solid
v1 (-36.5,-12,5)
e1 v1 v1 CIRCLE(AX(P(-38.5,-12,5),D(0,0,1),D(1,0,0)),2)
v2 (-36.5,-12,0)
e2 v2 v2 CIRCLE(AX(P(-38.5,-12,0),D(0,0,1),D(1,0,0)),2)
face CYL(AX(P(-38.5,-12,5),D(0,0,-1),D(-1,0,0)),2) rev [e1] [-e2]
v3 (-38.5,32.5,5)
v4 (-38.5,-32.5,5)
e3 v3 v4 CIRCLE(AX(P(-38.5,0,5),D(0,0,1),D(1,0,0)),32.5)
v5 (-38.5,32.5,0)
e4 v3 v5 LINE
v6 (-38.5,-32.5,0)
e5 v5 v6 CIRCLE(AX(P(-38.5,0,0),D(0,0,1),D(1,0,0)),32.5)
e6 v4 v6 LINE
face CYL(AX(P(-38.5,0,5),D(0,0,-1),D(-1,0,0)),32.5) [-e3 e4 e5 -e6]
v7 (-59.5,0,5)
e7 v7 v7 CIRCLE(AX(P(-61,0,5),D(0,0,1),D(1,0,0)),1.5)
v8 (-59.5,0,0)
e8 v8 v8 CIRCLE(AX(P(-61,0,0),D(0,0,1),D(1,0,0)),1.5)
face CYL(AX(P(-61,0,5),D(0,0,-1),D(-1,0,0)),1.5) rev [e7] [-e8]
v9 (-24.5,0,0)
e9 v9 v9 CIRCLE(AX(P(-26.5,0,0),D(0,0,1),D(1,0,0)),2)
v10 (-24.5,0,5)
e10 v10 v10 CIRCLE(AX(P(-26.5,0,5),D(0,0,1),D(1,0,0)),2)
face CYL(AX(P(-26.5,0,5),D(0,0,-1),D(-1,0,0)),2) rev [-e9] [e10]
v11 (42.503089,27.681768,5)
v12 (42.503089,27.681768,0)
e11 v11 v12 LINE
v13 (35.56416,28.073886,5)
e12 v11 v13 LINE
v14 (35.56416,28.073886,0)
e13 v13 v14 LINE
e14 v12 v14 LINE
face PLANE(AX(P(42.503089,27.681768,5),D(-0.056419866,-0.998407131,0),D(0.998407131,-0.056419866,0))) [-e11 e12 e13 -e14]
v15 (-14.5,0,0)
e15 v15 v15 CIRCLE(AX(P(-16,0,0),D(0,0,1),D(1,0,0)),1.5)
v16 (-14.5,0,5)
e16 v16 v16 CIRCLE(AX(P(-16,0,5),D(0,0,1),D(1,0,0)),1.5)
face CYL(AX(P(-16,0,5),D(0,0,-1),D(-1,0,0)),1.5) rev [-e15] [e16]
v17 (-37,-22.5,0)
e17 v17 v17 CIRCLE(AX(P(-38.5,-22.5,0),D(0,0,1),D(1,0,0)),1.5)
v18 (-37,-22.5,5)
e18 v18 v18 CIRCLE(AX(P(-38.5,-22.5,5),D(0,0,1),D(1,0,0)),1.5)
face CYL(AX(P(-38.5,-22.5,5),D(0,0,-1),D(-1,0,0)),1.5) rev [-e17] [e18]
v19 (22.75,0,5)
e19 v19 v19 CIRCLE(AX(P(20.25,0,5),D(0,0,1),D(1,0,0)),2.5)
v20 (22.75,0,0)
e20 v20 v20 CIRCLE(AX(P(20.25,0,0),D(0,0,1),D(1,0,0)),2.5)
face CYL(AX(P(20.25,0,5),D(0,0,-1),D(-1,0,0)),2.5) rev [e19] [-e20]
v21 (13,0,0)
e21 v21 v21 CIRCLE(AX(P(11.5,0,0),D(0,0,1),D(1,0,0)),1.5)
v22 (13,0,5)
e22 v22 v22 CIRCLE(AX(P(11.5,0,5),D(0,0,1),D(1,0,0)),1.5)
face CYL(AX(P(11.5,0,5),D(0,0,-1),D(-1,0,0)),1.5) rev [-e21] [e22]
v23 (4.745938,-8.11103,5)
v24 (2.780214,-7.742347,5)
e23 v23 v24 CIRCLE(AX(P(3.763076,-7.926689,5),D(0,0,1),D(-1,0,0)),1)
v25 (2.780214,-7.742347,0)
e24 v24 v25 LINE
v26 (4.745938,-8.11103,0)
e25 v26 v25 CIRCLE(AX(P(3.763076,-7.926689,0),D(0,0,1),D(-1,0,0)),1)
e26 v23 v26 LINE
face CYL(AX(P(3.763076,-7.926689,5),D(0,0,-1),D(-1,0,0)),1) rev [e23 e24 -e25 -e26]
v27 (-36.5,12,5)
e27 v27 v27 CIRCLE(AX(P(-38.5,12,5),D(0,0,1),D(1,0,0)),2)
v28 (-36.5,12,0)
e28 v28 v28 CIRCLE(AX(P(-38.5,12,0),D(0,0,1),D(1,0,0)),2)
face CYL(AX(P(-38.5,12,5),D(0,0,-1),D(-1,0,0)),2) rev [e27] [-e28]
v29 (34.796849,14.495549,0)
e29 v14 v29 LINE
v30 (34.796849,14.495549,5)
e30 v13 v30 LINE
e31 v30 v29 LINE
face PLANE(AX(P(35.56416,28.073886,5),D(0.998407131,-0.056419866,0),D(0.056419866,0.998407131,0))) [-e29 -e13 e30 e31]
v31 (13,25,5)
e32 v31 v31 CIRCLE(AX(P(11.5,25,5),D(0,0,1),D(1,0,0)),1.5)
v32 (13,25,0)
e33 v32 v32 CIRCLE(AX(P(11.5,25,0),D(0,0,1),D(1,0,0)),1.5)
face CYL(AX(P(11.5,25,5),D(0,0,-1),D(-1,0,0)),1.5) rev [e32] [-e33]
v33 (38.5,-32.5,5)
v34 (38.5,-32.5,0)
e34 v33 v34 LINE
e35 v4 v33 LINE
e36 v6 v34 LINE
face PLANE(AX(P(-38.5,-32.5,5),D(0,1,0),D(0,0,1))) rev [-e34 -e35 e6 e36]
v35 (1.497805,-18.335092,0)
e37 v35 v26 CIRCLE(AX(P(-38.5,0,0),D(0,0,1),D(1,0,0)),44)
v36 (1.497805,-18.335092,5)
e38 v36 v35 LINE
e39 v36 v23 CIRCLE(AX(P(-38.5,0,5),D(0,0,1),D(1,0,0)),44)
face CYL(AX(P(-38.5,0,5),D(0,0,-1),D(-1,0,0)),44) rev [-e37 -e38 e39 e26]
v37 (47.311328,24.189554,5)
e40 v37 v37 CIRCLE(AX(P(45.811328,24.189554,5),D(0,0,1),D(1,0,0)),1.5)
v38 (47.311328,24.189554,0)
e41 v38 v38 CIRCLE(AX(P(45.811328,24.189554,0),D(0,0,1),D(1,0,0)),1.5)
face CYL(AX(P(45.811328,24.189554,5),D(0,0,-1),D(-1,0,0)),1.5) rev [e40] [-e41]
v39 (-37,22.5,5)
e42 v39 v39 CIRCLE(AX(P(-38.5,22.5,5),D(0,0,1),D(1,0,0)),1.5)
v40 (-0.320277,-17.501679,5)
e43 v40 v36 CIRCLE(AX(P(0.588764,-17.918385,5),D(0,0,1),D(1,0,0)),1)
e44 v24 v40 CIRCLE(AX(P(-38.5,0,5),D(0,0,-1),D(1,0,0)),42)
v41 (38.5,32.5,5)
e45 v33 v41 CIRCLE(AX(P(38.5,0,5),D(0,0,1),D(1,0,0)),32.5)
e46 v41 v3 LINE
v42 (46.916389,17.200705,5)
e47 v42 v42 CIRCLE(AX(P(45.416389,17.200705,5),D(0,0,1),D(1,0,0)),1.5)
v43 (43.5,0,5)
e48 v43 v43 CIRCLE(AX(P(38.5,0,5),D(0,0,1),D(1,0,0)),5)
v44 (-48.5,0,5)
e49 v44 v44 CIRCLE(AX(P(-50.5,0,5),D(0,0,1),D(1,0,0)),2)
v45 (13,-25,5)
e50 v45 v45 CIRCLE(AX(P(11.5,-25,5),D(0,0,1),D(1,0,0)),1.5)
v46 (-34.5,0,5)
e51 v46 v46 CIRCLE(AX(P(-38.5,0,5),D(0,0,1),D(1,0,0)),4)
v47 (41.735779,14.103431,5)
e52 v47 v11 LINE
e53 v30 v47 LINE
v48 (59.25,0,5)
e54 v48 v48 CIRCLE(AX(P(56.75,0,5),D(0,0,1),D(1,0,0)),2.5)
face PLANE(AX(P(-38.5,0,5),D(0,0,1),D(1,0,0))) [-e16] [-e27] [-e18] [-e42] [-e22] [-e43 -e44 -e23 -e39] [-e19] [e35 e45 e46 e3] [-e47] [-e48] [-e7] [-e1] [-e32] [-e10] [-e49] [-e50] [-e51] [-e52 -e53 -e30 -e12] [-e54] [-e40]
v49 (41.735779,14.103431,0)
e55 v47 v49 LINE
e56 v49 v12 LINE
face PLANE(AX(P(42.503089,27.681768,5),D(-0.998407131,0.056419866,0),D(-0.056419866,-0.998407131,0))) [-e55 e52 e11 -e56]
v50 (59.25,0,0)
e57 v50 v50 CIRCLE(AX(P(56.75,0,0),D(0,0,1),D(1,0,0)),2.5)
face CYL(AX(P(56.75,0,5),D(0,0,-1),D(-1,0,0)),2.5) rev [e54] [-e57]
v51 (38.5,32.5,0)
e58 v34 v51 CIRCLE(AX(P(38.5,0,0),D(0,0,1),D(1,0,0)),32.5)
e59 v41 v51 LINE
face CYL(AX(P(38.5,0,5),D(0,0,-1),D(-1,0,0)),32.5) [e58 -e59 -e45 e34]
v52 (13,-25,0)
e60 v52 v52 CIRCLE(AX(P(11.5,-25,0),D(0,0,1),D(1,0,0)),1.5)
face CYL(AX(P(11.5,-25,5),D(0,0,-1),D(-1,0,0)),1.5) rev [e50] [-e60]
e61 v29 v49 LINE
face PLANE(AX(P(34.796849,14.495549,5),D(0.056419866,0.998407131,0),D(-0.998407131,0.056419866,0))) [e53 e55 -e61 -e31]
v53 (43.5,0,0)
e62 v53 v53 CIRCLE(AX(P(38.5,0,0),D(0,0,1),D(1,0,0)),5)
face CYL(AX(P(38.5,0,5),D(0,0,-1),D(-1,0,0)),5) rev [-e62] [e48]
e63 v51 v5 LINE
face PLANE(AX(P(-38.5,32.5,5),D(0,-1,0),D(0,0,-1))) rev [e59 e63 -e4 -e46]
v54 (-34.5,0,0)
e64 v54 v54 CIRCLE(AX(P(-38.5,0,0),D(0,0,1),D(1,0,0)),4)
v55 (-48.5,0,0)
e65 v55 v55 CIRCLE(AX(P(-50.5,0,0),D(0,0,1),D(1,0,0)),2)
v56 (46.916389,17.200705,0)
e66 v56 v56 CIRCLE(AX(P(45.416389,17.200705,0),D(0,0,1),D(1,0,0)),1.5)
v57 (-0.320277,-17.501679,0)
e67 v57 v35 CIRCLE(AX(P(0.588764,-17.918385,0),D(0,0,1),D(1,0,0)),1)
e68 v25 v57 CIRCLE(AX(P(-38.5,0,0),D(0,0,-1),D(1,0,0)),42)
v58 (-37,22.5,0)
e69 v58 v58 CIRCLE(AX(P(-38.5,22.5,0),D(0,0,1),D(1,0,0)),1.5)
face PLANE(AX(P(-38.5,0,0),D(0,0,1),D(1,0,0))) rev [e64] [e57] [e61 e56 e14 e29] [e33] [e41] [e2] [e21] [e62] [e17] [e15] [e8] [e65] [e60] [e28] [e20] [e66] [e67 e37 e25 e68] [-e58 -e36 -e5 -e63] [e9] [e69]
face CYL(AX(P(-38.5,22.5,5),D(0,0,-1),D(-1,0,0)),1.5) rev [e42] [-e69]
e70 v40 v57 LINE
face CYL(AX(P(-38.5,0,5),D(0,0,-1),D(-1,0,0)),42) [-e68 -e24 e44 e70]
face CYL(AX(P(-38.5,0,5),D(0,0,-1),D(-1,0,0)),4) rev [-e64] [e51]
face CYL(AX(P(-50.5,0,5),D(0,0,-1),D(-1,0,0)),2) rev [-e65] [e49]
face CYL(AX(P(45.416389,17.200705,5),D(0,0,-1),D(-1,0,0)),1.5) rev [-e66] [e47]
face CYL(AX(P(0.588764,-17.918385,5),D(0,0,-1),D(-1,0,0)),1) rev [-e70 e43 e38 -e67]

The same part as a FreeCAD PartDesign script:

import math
import FreeCAD as App
import Part
import Sketcher
from FreeCAD import Vector

doc = App.newDocument("Part")
body = doc.addObject("PartDesign::Body", "Body")

# Sketch on XY plane
sketch1 = body.newObject("Sketcher::SketchObject", "Sketch")
sketch1.AttachmentSupport = (doc.getObject("XY_Plane"), [""])
sketch1.MapMode = "FlatFace"
sketch1.addGeometry(Part.LineSegment(Vector(38.5, 32.5, 0), Vector(-38.5, 32.5, 0)), False)
sketch1.addGeometry(Part.ArcOfCircle(Part.Circle(Vector(-38.5, 0, 0), Vector(0, 0, 1), 32.5), math.radians(90), math.radians(270)), False)
sketch1.addGeometry(Part.LineSegment(Vector(-38.5, -32.5, 0), Vector(38.5, -32.5, 0)), False)
sketch1.addGeometry(Part.ArcOfCircle(Part.Circle(Vector(38.5, 0, 0), Vector(0, 0, 1), 32.5), math.radians(-90), math.radians(90)), False)
sketch1.addGeometry(Part.Circle(Vector(11.5, -25, 0), Vector(0, 0, 1), 1.5), False)
sketch1.addGeometry(Part.ArcOfCircle(Part.Circle(Vector(-38.5, 0, 0), Vector(0, 0, 1), 42), math.radians(-24.626838), math.radians(-10.622748)), False)
sketch1.addGeometry(Part.ArcOfCircle(Part.Circle(Vector(3.763076, -7.926689, 0), Vector(0, 0, 1), 1), math.radians(-10.622748), math.radians(169.377251)), False)
sketch1.addGeometry(Part.ArcOfCircle(Part.Circle(Vector(-38.5, 0, 0), Vector(0, 0, 1), 44), math.radians(-24.626838), math.radians(-10.622749)), False)
sketch1.addGeometry(Part.ArcOfCircle(Part.Circle(Vector(0.588764, -17.918385, 0), Vector(0, 0, 1), 1), math.radians(155.373162), math.radians(335.373162)), False)
sketch1.addGeometry(Part.Circle(Vector(56.75, 0, 0), Vector(0, 0, 1), 2.5), False)
sketch1.addGeometry(Part.Circle(Vector(38.5, 0, 0), Vector(0, 0, 1), 5), False)
sketch1.addGeometry(Part.Circle(Vector(20.25, 0, 0), Vector(0, 0, 1), 2.5), False)
sketch1.addGeometry(Part.Circle(Vector(11.5, 0, 0), Vector(0, 0, 1), 1.5), False)
sketch1.addGeometry(Part.Circle(Vector(-38.5, -22.5, 0), Vector(0, 0, 1), 1.5), False)
sketch1.addGeometry(Part.Circle(Vector(-16, 0, 0), Vector(0, 0, 1), 1.5), False)
sketch1.addGeometry(Part.Circle(Vector(-26.5, 0, 0), Vector(0, 0, 1), 2), False)
sketch1.addGeometry(Part.Circle(Vector(-38.5, -12, 0), Vector(0, 0, 1), 2), False)
sketch1.addGeometry(Part.Circle(Vector(-38.5, 0, 0), Vector(0, 0, 1), 4), False)
sketch1.addGeometry(Part.Circle(Vector(-50.5, 0, 0), Vector(0, 0, 1), 2), False)
sketch1.addGeometry(Part.Circle(Vector(-61, 0, 0), Vector(0, 0, 1), 1.5), False)
sketch1.addGeometry(Part.Circle(Vector(45.416389, 17.200705, 0), Vector(0, 0, 1), 1.5), False)
sketch1.addGeometry(Part.LineSegment(Vector(42.503089, 27.681768, 0), Vector(41.735779, 14.103431, 0)), False)
sketch1.addGeometry(Part.LineSegment(Vector(41.735779, 14.103431, 0), Vector(34.796849, 14.495549, 0)), False)
sketch1.addGeometry(Part.LineSegment(Vector(34.796849, 14.495549, 0), Vector(35.56416, 28.073886, 0)), False)
sketch1.addGeometry(Part.LineSegment(Vector(35.56416, 28.073886, 0), Vector(42.503089, 27.681768, 0)), False)
sketch1.addGeometry(Part.Circle(Vector(45.811328, 24.189554, 0), Vector(0, 0, 1), 1.5), False)
sketch1.addGeometry(Part.Circle(Vector(11.5, 25, 0), Vector(0, 0, 1), 1.5), False)
sketch1.addGeometry(Part.Circle(Vector(-38.5, 12, 0), Vector(0, 0, 1), 2), False)
sketch1.addGeometry(Part.Circle(Vector(-38.5, 22.5, 0), Vector(0, 0, 1), 1.5), False)
sketch1.addConstraint(Sketcher.Constraint("Tangent", 0, 2, 1, 1))
sketch1.addConstraint(Sketcher.Constraint("Tangent", 1, 2, 2, 1))
sketch1.addConstraint(Sketcher.Constraint("Tangent", 2, 2, 3, 1))
sketch1.addConstraint(Sketcher.Constraint("Tangent", 3, 2, 0, 1))
sketch1.addConstraint(Sketcher.Constraint("Tangent", 5, 2, 6, 2))
sketch1.addConstraint(Sketcher.Constraint("Tangent", 6, 1, 7, 2))
sketch1.addConstraint(Sketcher.Constraint("Tangent", 7, 1, 8, 2))
sketch1.addConstraint(Sketcher.Constraint("Tangent", 8, 1, 5, 1))
sketch1.addConstraint(Sketcher.Constraint("Coincident", 21, 2, 22, 1))
sketch1.addConstraint(Sketcher.Constraint("Coincident", 22, 2, 23, 1))
sketch1.addConstraint(Sketcher.Constraint("Coincident", 23, 2, 24, 1))
sketch1.addConstraint(Sketcher.Constraint("Coincident", 24, 2, 21, 1))
sketch1.addConstraint(Sketcher.Constraint("Horizontal", 0))
sketch1.addConstraint(Sketcher.Constraint("Horizontal", 2))
sketch1.addConstraint(Sketcher.Constraint("Coincident", 5, 3, 1, 3))
sketch1.addConstraint(Sketcher.Constraint("Coincident", 7, 3, 1, 3))
sketch1.addConstraint(Sketcher.Constraint("Coincident", 10, 3, 3, 3))
sketch1.addConstraint(Sketcher.Constraint("Coincident", 17, 3, 1, 3))
sketch1.addConstraint(Sketcher.Constraint("Equal", 9, 11))
sketch1.addConstraint(Sketcher.Constraint("Equal", 4, 12))
sketch1.addConstraint(Sketcher.Constraint("Equal", 12, 13))
sketch1.addConstraint(Sketcher.Constraint("Equal", 13, 14))
sketch1.addConstraint(Sketcher.Constraint("Equal", 15, 16))
sketch1.addConstraint(Sketcher.Constraint("Equal", 16, 18))
sketch1.addConstraint(Sketcher.Constraint("Equal", 14, 19))
sketch1.addConstraint(Sketcher.Constraint("Equal", 19, 20))
sketch1.addConstraint(Sketcher.Constraint("Equal", 20, 25))
sketch1.addConstraint(Sketcher.Constraint("Equal", 25, 26))
sketch1.addConstraint(Sketcher.Constraint("Equal", 18, 27))
sketch1.addConstraint(Sketcher.Constraint("Equal", 26, 28))
sketch1.addConstraint(Sketcher.Constraint("Symmetric", 1, 3, 3, 3, -1, 1))
sketch1.addConstraint(Sketcher.Constraint("Symmetric", 4, 3, 26, 3, -1))
sketch1.addConstraint(Sketcher.Constraint("Symmetric", 16, 3, 27, 3, -1))
sketch1.addConstraint(Sketcher.Constraint("Symmetric", 13, 3, 28, 3, -1))
sketch1.addConstraint(Sketcher.Constraint("PointOnObject", 9, 3, -1))
sketch1.addConstraint(Sketcher.Constraint("PointOnObject", 11, 3, -1))
sketch1.addConstraint(Sketcher.Constraint("PointOnObject", 12, 3, -1))
sketch1.addConstraint(Sketcher.Constraint("PointOnObject", 14, 3, -1))
sketch1.addConstraint(Sketcher.Constraint("PointOnObject", 15, 3, -1))
sketch1.addConstraint(Sketcher.Constraint("PointOnObject", 18, 3, -1))
sketch1.addConstraint(Sketcher.Constraint("PointOnObject", 19, 3, -1))
sketch1.addConstraint(Sketcher.Constraint("Perpendicular", 21, 22))
sketch1.addConstraint(Sketcher.Constraint("Perpendicular", 22, 23))
sketch1.addConstraint(Sketcher.Constraint("Perpendicular", 23, 24))
sketch1.addConstraint(Sketcher.Constraint("Vertical", 4, 3, 12, 3))
sketch1.addConstraint(Sketcher.Constraint("Vertical", 7, 3, 13, 3))
sketch1.addConstraint(Sketcher.Constraint("Vertical", 13, 3, 16, 3))
sketch1.addConstraint(Sketcher.Constraint("Diameter", 4, 3.0))
sketch1.addConstraint(Sketcher.Constraint("Diameter", 9, 5.0))
sketch1.addConstraint(Sketcher.Constraint("Diameter", 10, 10.0))
sketch1.addConstraint(Sketcher.Constraint("Diameter", 15, 4.0))
sketch1.addConstraint(Sketcher.Constraint("Diameter", 17, 8.0))
sketch1.addConstraint(Sketcher.Constraint("Radius", 5, 42.0))
sketch1.addConstraint(Sketcher.Constraint("Radius", 6, 1.0))
sketch1.addConstraint(Sketcher.Constraint("Radius", 1, 32.5))
sketch1.addConstraint(Sketcher.Constraint("DistanceX", 0, 2, 0, 1, 77.0))
sketch1.addConstraint(Sketcher.Constraint("DistanceY", 4, 3, -1, 1, 25.0))
sketch1.addConstraint(Sketcher.Constraint("DistanceX", 14, 3, -1, 1, 16.0))
sketch1.addConstraint(Sketcher.Constraint("DistanceY", 16, 3, -1, 1, 12.0))
sketch1.addConstraint(Sketcher.Constraint("DistanceX", 19, 3, -1, 1, 61.0))
sketch1.addConstraint(Sketcher.Constraint("DistanceX", 4, 3, 3, 3, 27.0))
sketch1.addConstraint(Sketcher.Constraint("DistanceX", 5, 3, 15, 3, 12.0))
sketch1.addConstraint(Sketcher.Constraint("DistanceX", 18, 3, 7, 3, 12.0))
sketch1.addConstraint(Sketcher.Constraint("DistanceY", 28, 3, 0, 2, 10.0))
sketch1.addConstraint(Sketcher.Constraint("Distance", 21, 13.6))
sketch1.addConstraint(Sketcher.Constraint("Distance", 22, 6.95))
sketch1.addConstraint(Sketcher.Constraint("DistanceX", -1, 1, 9, 3, 56.75))
sketch1.addConstraint(Sketcher.Constraint("DistanceX", -1, 1, 11, 3, 20.25))
sketch1.addConstraint(Sketcher.Constraint("DistanceX", 24, 2, 20, 3, 2.9133))
sketch1.addConstraint(Sketcher.Constraint("DistanceY", 6, 3, -1, 1, 7.926689))
sketch1.addConstraint(Sketcher.Constraint("DistanceX", -1, 1, 20, 3, 45.416389))
sketch1.addConstraint(Sketcher.Constraint("DistanceX", -1, 1, 25, 3, 45.811328))
sketch1.addConstraint(Sketcher.Constraint("DistanceY", 8, 1, -1, 1, 17.501679))
sketch1.addConstraint(Sketcher.Constraint("DistanceX", -1, 1, 21, 2, 41.735779))
sketch1.addConstraint(Sketcher.Constraint("DistanceY", -1, 1, 21, 2, 14.103431))
sketch1.addConstraint(Sketcher.Constraint("DistanceY", 20, 3, 25, 3, 6.98885))
sketch1.addConstraint(Sketcher.Constraint("DistanceY", 25, 3, 23, 2, 3.884331))
pad1 = body.newObject("PartDesign::Pad", "Pad")
pad1.Profile = sketch1
pad1.Length = 5

doc.recompute()
